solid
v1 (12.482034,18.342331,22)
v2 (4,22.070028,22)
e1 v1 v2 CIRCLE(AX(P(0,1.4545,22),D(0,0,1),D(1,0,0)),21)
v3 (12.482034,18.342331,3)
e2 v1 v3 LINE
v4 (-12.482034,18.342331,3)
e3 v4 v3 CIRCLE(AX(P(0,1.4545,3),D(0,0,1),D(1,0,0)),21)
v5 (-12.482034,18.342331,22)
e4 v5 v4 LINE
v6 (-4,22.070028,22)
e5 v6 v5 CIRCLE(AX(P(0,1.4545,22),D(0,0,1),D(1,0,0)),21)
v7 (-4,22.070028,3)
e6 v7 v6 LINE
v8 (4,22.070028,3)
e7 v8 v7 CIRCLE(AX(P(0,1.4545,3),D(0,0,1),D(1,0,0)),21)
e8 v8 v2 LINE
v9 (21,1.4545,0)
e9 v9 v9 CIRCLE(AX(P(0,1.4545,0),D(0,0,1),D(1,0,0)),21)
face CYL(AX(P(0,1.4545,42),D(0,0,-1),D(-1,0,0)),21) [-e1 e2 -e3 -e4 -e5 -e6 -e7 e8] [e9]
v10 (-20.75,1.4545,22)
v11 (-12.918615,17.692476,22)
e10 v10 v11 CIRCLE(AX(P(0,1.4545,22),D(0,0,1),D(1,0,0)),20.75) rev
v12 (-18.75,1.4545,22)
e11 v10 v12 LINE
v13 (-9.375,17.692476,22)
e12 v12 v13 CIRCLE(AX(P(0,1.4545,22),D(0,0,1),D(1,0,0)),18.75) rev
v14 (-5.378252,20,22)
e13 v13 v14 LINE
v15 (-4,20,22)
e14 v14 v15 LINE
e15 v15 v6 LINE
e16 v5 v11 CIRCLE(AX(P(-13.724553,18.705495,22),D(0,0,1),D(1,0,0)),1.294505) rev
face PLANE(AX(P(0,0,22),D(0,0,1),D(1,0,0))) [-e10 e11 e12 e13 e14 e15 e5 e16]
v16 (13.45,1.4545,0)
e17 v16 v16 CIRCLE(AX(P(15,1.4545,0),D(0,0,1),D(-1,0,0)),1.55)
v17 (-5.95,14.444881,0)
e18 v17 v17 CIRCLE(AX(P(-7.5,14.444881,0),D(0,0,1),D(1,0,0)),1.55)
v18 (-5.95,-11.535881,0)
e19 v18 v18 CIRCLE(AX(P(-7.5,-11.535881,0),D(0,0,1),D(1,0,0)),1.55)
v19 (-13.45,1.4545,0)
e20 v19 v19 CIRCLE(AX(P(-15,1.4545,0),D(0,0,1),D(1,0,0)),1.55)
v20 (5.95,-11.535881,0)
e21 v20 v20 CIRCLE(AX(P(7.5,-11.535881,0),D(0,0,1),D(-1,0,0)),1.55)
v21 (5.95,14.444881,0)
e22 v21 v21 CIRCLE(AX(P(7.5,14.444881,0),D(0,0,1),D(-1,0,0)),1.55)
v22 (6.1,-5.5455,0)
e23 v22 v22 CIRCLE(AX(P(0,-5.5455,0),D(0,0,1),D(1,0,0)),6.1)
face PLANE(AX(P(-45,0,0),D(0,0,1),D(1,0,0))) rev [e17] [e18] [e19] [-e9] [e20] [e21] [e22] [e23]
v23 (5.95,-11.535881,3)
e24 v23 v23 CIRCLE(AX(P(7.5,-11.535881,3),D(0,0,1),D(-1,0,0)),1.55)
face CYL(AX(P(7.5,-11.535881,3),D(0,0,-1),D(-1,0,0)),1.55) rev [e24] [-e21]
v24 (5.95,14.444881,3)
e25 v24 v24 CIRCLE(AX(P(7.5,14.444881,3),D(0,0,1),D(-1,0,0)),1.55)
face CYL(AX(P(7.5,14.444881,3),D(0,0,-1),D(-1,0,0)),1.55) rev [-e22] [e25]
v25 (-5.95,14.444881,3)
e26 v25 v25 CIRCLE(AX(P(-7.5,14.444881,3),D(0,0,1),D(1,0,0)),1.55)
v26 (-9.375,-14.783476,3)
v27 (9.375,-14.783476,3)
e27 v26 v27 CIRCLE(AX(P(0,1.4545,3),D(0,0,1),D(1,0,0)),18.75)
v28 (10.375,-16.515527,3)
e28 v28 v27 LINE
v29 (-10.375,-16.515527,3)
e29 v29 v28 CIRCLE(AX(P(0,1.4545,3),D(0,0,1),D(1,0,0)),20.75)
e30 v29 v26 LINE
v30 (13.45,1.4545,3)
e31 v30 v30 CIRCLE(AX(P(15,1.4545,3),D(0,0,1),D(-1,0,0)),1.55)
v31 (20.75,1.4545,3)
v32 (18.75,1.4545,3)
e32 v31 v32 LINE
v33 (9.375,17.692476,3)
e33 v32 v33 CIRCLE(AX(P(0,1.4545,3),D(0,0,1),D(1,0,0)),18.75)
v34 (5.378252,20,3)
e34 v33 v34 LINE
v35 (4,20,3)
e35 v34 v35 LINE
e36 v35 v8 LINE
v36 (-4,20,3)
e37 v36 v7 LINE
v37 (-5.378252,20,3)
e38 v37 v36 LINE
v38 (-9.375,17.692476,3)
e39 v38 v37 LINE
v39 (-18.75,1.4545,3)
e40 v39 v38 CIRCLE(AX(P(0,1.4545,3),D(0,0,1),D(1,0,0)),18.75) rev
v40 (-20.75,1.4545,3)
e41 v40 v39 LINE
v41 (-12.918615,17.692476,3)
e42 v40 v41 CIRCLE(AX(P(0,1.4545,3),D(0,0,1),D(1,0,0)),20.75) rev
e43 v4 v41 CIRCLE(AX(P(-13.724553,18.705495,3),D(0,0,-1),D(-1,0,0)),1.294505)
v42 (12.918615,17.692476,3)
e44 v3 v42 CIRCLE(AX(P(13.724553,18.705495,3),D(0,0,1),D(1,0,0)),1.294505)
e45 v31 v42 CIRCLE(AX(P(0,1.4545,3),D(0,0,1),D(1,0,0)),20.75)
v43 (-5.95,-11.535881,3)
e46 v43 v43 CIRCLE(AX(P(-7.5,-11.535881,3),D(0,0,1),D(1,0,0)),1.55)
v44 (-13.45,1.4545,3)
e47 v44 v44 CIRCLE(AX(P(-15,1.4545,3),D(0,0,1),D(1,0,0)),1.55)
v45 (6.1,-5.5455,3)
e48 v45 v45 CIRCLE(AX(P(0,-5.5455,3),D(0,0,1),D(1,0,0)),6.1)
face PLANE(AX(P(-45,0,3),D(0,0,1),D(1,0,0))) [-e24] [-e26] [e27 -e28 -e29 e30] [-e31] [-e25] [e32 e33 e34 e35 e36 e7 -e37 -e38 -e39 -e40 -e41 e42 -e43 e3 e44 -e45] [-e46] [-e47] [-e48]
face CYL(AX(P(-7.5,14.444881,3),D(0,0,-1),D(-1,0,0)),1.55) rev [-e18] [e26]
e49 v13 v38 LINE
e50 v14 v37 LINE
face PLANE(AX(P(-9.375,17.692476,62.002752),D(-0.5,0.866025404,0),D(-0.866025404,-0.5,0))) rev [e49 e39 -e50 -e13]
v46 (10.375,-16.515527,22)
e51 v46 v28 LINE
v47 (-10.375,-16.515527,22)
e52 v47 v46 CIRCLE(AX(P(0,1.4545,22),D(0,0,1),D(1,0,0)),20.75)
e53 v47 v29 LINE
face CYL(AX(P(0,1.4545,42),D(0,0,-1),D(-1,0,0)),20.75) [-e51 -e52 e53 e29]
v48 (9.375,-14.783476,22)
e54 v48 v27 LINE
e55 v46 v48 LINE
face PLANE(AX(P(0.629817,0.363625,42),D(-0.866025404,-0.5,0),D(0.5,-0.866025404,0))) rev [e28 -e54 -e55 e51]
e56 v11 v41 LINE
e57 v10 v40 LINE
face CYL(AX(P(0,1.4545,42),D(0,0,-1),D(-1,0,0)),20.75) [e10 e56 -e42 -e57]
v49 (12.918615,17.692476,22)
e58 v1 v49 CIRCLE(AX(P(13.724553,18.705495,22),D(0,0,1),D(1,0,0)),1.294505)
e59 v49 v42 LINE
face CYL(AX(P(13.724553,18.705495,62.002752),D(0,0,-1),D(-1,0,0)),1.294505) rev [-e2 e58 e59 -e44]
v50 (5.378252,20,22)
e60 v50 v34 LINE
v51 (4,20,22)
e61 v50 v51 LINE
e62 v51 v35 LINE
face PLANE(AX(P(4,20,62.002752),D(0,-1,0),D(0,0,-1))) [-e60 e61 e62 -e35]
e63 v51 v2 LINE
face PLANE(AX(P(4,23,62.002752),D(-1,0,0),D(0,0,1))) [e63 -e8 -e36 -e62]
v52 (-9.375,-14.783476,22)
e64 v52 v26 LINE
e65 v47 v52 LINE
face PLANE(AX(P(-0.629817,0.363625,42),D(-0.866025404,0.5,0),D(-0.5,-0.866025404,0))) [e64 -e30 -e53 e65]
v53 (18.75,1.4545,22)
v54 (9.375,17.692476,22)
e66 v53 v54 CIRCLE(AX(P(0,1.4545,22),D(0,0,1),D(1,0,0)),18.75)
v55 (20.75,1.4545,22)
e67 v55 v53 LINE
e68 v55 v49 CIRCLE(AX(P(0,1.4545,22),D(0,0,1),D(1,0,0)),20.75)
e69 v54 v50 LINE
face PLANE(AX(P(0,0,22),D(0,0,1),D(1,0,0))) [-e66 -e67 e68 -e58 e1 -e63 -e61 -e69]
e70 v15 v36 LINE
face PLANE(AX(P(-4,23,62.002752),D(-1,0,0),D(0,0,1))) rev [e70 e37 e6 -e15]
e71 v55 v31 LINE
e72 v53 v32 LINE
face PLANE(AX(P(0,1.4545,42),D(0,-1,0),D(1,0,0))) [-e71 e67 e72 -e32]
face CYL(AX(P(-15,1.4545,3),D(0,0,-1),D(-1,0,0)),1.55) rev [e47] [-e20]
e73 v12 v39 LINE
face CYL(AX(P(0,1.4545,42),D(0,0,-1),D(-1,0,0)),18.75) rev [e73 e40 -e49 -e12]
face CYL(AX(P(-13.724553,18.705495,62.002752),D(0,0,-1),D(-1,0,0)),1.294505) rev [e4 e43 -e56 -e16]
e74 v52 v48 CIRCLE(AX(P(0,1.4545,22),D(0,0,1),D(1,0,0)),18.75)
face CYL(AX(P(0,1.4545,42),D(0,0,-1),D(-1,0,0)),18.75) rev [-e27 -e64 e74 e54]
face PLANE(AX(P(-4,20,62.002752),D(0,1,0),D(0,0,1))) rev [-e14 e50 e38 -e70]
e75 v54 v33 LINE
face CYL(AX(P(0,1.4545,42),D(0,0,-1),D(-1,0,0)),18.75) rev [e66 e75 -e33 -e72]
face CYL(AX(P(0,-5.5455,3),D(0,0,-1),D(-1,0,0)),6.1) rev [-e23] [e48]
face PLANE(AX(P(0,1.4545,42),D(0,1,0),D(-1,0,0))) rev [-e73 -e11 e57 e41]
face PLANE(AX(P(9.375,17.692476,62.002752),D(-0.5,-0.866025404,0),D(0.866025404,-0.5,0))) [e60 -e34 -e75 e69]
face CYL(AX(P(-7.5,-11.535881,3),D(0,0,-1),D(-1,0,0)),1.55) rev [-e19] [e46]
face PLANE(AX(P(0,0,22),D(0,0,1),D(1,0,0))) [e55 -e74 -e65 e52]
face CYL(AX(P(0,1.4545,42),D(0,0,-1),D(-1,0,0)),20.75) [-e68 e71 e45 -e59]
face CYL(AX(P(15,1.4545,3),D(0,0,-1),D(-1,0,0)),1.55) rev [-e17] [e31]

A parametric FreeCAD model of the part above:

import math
import FreeCAD as App
import Part
import Sketcher
Q = App.Units.Quantity

doc = App.newDocument("Part")
body = doc.addObject("PartDesign::Body", "Body")

# Sketch on XY plane
sketch1 = body.newObject("Sketcher::SketchObject", "Sketch")
sketch1.AttachmentSupport = (doc.getObject("XY_Plane"), [""])
sketch1.MapMode = "FlatFace"
sketch1.addGeometry([
    Part.LineSegment(App.Vector(-12, 37.8, 0), App.Vector(-48.4, 3.7, 0)),  # 0
    Part.ArcOfCircle(Part.Circle(App.Vector(-45, 0, 0), App.Vector(0, 0, 1), 5), math.radians(133), math.radians(244)),  # 1
    Part.LineSegment(App.Vector(-47.2, -4.5, 0), App.Vector(-17.7, -19.2, 0)),  # 2
    Part.ArcOfCircle(Part.Circle(App.Vector(-16, -15.8, 0), App.Vector(0, 0, 1), 3.8), math.radians(-116), math.radians(-90)),  # 3
    Part.LineSegment(App.Vector(-16, -19.5, 0), App.Vector(16, -19.5, 0)),  # 4
    Part.ArcOfCircle(Part.Circle(App.Vector(16, -15.8, 0), App.Vector(0, 0, 1), 3.8), math.radians(-90), math.radians(-64)),  # 5
    Part.LineSegment(App.Vector(17.7, -19.2, 0), App.Vector(47.2, -4.5, 0)),  # 6
    Part.ArcOfCircle(Part.Circle(App.Vector(45, 0, 0), App.Vector(0, 0, 1), 5), math.radians(-64), math.radians(47)),  # 7
    Part.LineSegment(App.Vector(48.4, 3.7, 0), App.Vector(12, 37.8, 0)),  # 8
    Part.ArcOfCircle(Part.Circle(App.Vector(0, 25, 0), App.Vector(0, 0, 1), 17.5), math.radians(47), math.radians(133)),  # 9
    Part.Circle(App.Vector(16, -15.8, 0), App.Vector(0, 0, 1), 2.5),  # 10
    Part.Circle(App.Vector(7.5, -11.5, 0), App.Vector(0, 0, 1), 1.6),  # 11
    Part.Circle(App.Vector(-16, -15.8, 0), App.Vector(0, 0, 1), 2.5),  # 12
    Part.Circle(App.Vector(-7.5, -11.5, 0), App.Vector(0, 0, 1), 1.6),  # 13
    Part.Circle(App.Vector(0, -5.5, 0), App.Vector(0, 0, 1), 6.1),  # 14
    Part.Circle(App.Vector(45, 0, 0), App.Vector(0, 0, 1), 2.5),  # 15
    Part.Circle(App.Vector(25, 0, 0), App.Vector(0, 0, 1), 2.5),  # 16
    Part.Circle(App.Vector(15, 1.5, 0), App.Vector(0, 0, 1), 1.6),  # 17
    Part.Circle(App.Vector(7.5, 14.4, 0), App.Vector(0, 0, 1), 1.6),  # 18
    Part.Circle(App.Vector(-15, 1.5, 0), App.Vector(0, 0, 1), 1.6),  # 19
    Part.Circle(App.Vector(-25, 0, 0), App.Vector(0, 0, 1), 2.5),  # 20
    Part.Circle(App.Vector(-45, 0, 0), App.Vector(0, 0, 1), 2.5),  # 21
    Part.Circle(App.Vector(-7.5, 14.4, 0), App.Vector(0, 0, 1), 1.6),  # 22
], False)
sketch1.addConstraint([
    Sketcher.Constraint("Tangent", 0, 2, 1, 1),
    Sketcher.Constraint("Tangent", 1, 2, 2, 1),
    Sketcher.Constraint("Tangent", 2, 2, 3, 1),
    Sketcher.Constraint("Tangent", 3, 2, 4, 1),
    Sketcher.Constraint("Tangent", 4, 2, 5, 1),
    Sketcher.Constraint("Tangent", 5, 2, 6, 1),
    Sketcher.Constraint("Tangent", 6, 2, 7, 1),
    Sketcher.Constraint("Tangent", 7, 2, 8, 1),
    Sketcher.Constraint("Tangent", 8, 2, 9, 1),
    Sketcher.Constraint("Tangent", 9, 2, 0, 1),
    Sketcher.Constraint("Horizontal", 4),
    Sketcher.Constraint("Coincident", 10, 3, 5, 3),
    Sketcher.Constraint("Coincident", 12, 3, 3, 3),
    Sketcher.Constraint("Coincident", 15, 3, 7, 3),
    Sketcher.Constraint("Coincident", 21, 3, 1, 3),
    Sketcher.Constraint("Equal", 3, 5),
    Sketcher.Constraint("Equal", 1, 7),
    Sketcher.Constraint("Equal", 10, 12),
    Sketcher.Constraint("Equal", 11, 13),
    Sketcher.Constraint("Equal", 12, 15),
    Sketcher.Constraint("Equal", 15, 16),
    Sketcher.Constraint("Equal", 13, 17),
    Sketcher.Constraint("Equal", 17, 18),
    Sketcher.Constraint("Equal", 18, 19),
    Sketcher.Constraint("Equal", 16, 20),
    Sketcher.Constraint("Equal", 20, 21),
    Sketcher.Constraint("Equal", 19, 22),
    Sketcher.Constraint("Symmetric", 1, 3, 7, 3, -1, 1),
    Sketcher.Constraint("Symmetric", 16, 3, 20, 3, -1, 1),
    Sketcher.Constraint("Symmetric", 11, 3, 13, 3, -2),
    Sketcher.Constraint("Symmetric", 17, 3, 19, 3, -2),
    Sketcher.Constraint("Symmetric", 18, 3, 22, 3, -2),
    Sketcher.Constraint("Symmetric", 2, 2, 5, 2, -2),
    Sketcher.Constraint("PointOnObject", 9, 3, -2),
    Sketcher.Constraint("PointOnObject", 14, 3, -2),
    Sketcher.Constraint("PointOnObject", 16, 3, -1),
    Sketcher.Constraint("Vertical", 11, 3, 18, 3),
    Sketcher.Constraint("Diameter", 10, 5.0),
    Sketcher.Constraint("Radius", 1, 5.0),
    Sketcher.Constraint("Diameter", 11, 3.1),
    Sketcher.Constraint("Diameter", 14, 12.2),
    Sketcher.Constraint("Radius", 9, 17.5),
    Sketcher.Constraint("DistanceX", 4, 1, 4, 2, 32.0),
    Sketcher.Constraint("Radius", 3, 3.75),
    Sketcher.Constraint("DistanceX", 1, 3, -1, 1, 45.0),
    Sketcher.Constraint("DistanceY", -1, 1, 9, 3, 25.0),
    Sketcher.Constraint("DistanceX", -1, 1, 16, 3, 25.0),
    Sketcher.Constraint("DistanceX", -1, 1, 17, 3, 15.0),
    Sketcher.Constraint("DistanceX", 13, 3, 11, 3, 15.0),
    Sketcher.Constraint("DistanceY", 14, 3, 17, 3, 7.0),
    Sketcher.Constraint("DistanceY", 3, 2, 19, 3, 21.0),
    Sketcher.Constraint("DistanceY", 3, 3, -1, 1, 15.7955),
    Sketcher.Constraint("DistanceY", 11, 3, -1, 1, 11.535881),
    Sketcher.Constraint("DistanceY", -1, 1, 18, 3, 14.444881),
])
pad1 = body.newObject("PartDesign::Pad", "Pad")
pad1.Profile = sketch1
pad1.Length = 3

# Sketch on XY plane
sketch2 = body.newObject("Sketcher::SketchObject", "Sketch001")
sketch2.AttachmentSupport = (doc.getObject("XY_Plane"), [""])
sketch2.MapMode = "FlatFace"
sketch2.AttachmentOffset = App.Placement(App.Vector(0, 0, 3), App.Rotation())
sketch2.addGeometry([
    Part.LineSegment(App.Vector(-20.8, 1.5, 0), App.Vector(-18.8, 1.5, 0)),  # 0
    Part.ArcOfCircle(Part.Circle(App.Vector(0, 1.5, 0), App.Vector(0, 0, 1), 18.8), math.radians(120), math.radians(180)),  # 1
    Part.LineSegment(App.Vector(-9.4, 17.7, 0), App.Vector(-10.4, 19.4, 0)),  # 2
    Part.ArcOfCircle(Part.Circle(App.Vector(0, 1.5, 0), App.Vector(0, 0, 1), 20.7), math.radians(120), math.radians(180)),  # 3
    Part.LineSegment(App.Vector(-9.4, -14.8, 0), App.Vector(-10.4, -16.5, 0)),  # 4
    Part.ArcOfCircle(Part.Circle(App.Vector(0, 1.5, 0), App.Vector(0, 0, 1), 20.8), math.radians(-120), math.radians(-60)),  # 5
    Part.LineSegment(App.Vector(10.4, -16.5, 0), App.Vector(9.4, -14.8, 0)),  # 6
    Part.ArcOfCircle(Part.Circle(App.Vector(0, 1.5, 0), App.Vector(0, 0, 1), 18.8), math.radians(-120), math.radians(-60)),  # 7
    Part.ArcOfCircle(Part.Circle(App.Vector(0, 1.5, 0), App.Vector(0, 0, 1), 18.8), math.radians(0), math.radians(60)),  # 8
    Part.LineSegment(App.Vector(18.8, 1.5, 0), App.Vector(20.8, 1.5, 0)),  # 9
    Part.ArcOfCircle(Part.Circle(App.Vector(0, 1.5, 0), App.Vector(0, 0, 1), 20.7), math.radians(0), math.radians(60)),  # 10
    Part.LineSegment(App.Vector(10.4, 19.4, 0), App.Vector(9.4, 17.7, 0)),  # 11
], False)
sketch2.addConstraint([
    Sketcher.Constraint("Coincident", 0, 2, 1, 2),
    Sketcher.Constraint("Coincident", 1, 1, 2, 1),
    Sketcher.Constraint("Coincident", 2, 2, 3, 1),
    Sketcher.Constraint("Coincident", 3, 2, 0, 1),
    Sketcher.Constraint("Coincident", 4, 2, 5, 1),
    Sketcher.Constraint("Coincident", 5, 2, 6, 1),
    Sketcher.Constraint("Coincident", 6, 2, 7, 2),
    Sketcher.Constraint("Coincident", 7, 1, 4, 1),
    Sketcher.Constraint("Coincident", 8, 1, 9, 1),
    Sketcher.Constraint("Coincident", 9, 2, 10, 1),
    Sketcher.Constraint("Coincident", 10, 2, 11, 1),
    Sketcher.Constraint("Coincident", 11, 2, 8, 2),
    Sketcher.Constraint("Horizontal", 0),
    Sketcher.Constraint("Horizontal", 9),
    Sketcher.Constraint("Coincident", 3, 3, 1, 3),
    Sketcher.Constraint("Coincident", 5, 3, 1, 3),
    Sketcher.Constraint("Coincident", 7, 3, 1, 3),
    Sketcher.Constraint("Coincident", 8, 3, 1, 3),
    Sketcher.Constraint("Coincident", 10, 3, 1, 3),
    Sketcher.Constraint("Equal", 3, 5),
    Sketcher.Constraint("Equal", 1, 7),
    Sketcher.Constraint("Equal", 7, 8),
    Sketcher.Constraint("Equal", 5, 10),
    Sketcher.Constraint("Symmetric", 4, 2, 5, 2, -2),
    Sketcher.Constraint("Parallel", 2, 6),
    Sketcher.Constraint("Parallel", 4, 11),
    Sketcher.Constraint("Horizontal", 10, 3, 0, 2),
    Sketcher.Constraint("Horizontal", 6, 2, 7, 1),
    Sketcher.Constraint("Horizontal", 3, 2, 8, 1),
    Sketcher.Constraint("Horizontal", 2, 2, 10, 2),
    Sketcher.Constraint("Vertical", 2, 2, 4, 2),
    Sketcher.Constraint("DistanceX", 0, 1, 0, 2, 2.0),
    Sketcher.Constraint("Angle", 2, Q("120 deg")),
    Sketcher.Constraint("Radius", 1, 18.75),
    Sketcher.Constraint("DistanceX", 4, 2, 5, 2, 20.75),
    Sketcher.Constraint("DistanceY", -1, 1, 1, 3, 1.4545),
])
pad2 = body.newObject("PartDesign::Pad", "Pad001")
pad2.Profile = sketch2
pad2.Length = 39

# Sketch on XY plane
sketch3 = body.newObject("Sketcher::SketchObject", "Sketch002")
sketch3.AttachmentSupport = (doc.getObject("XY_Plane"), [""])
sketch3.MapMode = "FlatFace"
sketch3.AttachmentOffset = App.Placement(App.Vector(0, 0, 3), App.Rotation())
sketch3.addGeometry([
    Part.LineSegment(App.Vector(-17.5, 23, 0), App.Vector(-17.5, 29, 0)),  # 0
    Part.LineSegment(App.Vector(-17.5, 29, 0), App.Vector(-20.5, 29, 0)),  # 1
    Part.LineSegment(App.Vector(-20.5, 29, 0), App.Vector(-20.5, 20, 0)),  # 2
    Part.LineSegment(App.Vector(-20.5, 20, 0), App.Vector(-13.7, 20, 0)),  # 3
    Part.ArcOfCircle(Part.Circle(App.Vector(-13.7, 18.7, 0), App.Vector(0, 0, 1), 1.3), math.radians(-51), math.radians(90)),  # 4
    Part.LineSegment(App.Vector(-12.9, 17.7, 0), App.Vector(-9.4, 17.7, 0)),  # 5
    Part.LineSegment(App.Vector(-9.4, 17.7, 0), App.Vector(-5.4, 20, 0)),  # 6
    Part.LineSegment(App.Vector(-5.4, 20, 0), App.Vector(-4, 20, 0)),  # 7
    Part.LineSegment(App.Vector(-4, 20, 0), App.Vector(-4, 23, 0)),  # 8
    Part.LineSegment(App.Vector(-4, 23, 0), App.Vector(-17.5, 23, 0)),  # 9
], False)
sketch3.addConstraint([
    Sketcher.Constraint("Coincident", 0, 2, 1, 1),
    Sketcher.Constraint("Coincident", 1, 2, 2, 1),
    Sketcher.Constraint("Coincident", 2, 2, 3, 1),
    Sketcher.Constraint("Tangent", 3, 2, 4, 2),
    Sketcher.Constraint("Coincident", 4, 1, 5, 1),
    Sketcher.Constraint("Coincident", 5, 2, 6, 1),
    Sketcher.Constraint("Coincident", 6, 2, 7, 1),
    Sketcher.Constraint("Coincident", 7, 2, 8, 1),
    Sketcher.Constraint("Coincident", 8, 2, 9, 1),
    Sketcher.Constraint("Coincident", 9, 2, 0, 1),
    Sketcher.Constraint("Vertical", 0),
    Sketcher.Constraint("Horizontal", 1),
    Sketcher.Constraint("Vertical", 2),
    Sketcher.Constraint("Horizontal", 3),
    Sketcher.Constraint("Horizontal", 5),
    Sketcher.Constraint("Horizontal", 7),
    Sketcher.Constraint("Vertical", 8),
    Sketcher.Constraint("Horizontal", 9),
    Sketcher.Constraint("Horizontal", 3, 2, 6, 2),
    Sketcher.Constraint("Equal", 1, 8),
    Sketcher.Constraint("DistanceX", 1, 2, 1, 1, 3.0),
    Sketcher.Constraint("DistanceY", 0, 1, 0, 2, 6.0),
    Sketcher.Constraint("Angle", 6, Q("30 deg")),
    Sketcher.Constraint("DistanceX", 9, 2, 9, 1, 13.5),
    Sketcher.Constraint("DistanceY", -1, 1, 0, 2, 29.0),
    Sketcher.Constraint("DistanceX", 7, 2, -1, 1, 4.0),
    Sketcher.Constraint("DistanceX", 5, 2, -1, 1, 9.375),
    Sketcher.Constraint("Radius", 4, 1.294505),
    Sketcher.Constraint("DistanceX", 7, 1, 7, 2, 1.378252),
    Sketcher.Constraint("DistanceX", 3, 2, 6, 2, 8.346302),
])
pad3 = body.newObject("PartDesign::Pad", "Pad002")
pad3.Profile = sketch3
pad3.Length = 39
doc.recompute()

mirrored = body.newObject("PartDesign::Mirrored", "Mirrored")
mirrored.Originals = [pad3]
mirrored.MirrorPlane = (doc.getObject("YZ_Plane"), [""])
body.Tip = mirrored

# Sketch on XZ plane
sketch4 = body.newObject("Sketcher::SketchObject", "Sketch003")
sketch4.AttachmentSupport = (doc.getObject("XZ_Plane"), [""])
sketch4.MapMode = "FlatFace"
sketch4.AttachmentOffset = App.Placement(App.Vector(0, 0, -23), App.Rotation())
sketch4.addGeometry([
    Part.LineSegment(App.Vector(-14.2, 27.5, 0), App.Vector(-14.2, 17.5, 0)),  # 0
    Part.ArcOfCircle(Part.Circle(App.Vector(-15.7, 17.5, 0), App.Vector(0, 0, 1), 1.5), math.radians(180), math.radians(360)),  # 1
    Part.LineSegment(App.Vector(-17.2, 17.5, 0), App.Vector(-17.2, 27.5, 0)),  # 2
    Part.ArcOfCircle(Part.Circle(App.Vector(-15.7, 27.5, 0), App.Vector(0, 0, 1), 1.5), math.radians(0), math.radians(180)),  # 3
    Part.LineSegment(App.Vector(14.2, 17.5, 0), App.Vector(14.2, 27.5, 0)),  # 4
    Part.ArcOfCircle(Part.Circle(App.Vector(15.7, 27.5, 0), App.Vector(0, 0, 1), 1.5), math.radians(0), math.radians(180)),  # 5
    Part.LineSegment(App.Vector(17.2, 27.5, 0), App.Vector(17.2, 17.5, 0)),  # 6
    Part.ArcOfCircle(Part.Circle(App.Vector(15.7, 17.5, 0), App.Vector(0, 0, 1), 1.5), math.radians(180), math.radians(360)),  # 7
], False)
sketch4.addConstraint([
    Sketcher.Constraint("Tangent", 0, 2, 1, 2),
    Sketcher.Constraint("Tangent", 1, 1, 2, 1),
    Sketcher.Constraint("Tangent", 2, 2, 3, 2),
    Sketcher.Constraint("Tangent", 3, 1, 0, 1),
    Sketcher.Constraint("Tangent", 4, 2, 5, 2),
    Sketcher.Constraint("Tangent", 5, 1, 6, 1),
    Sketcher.Constraint("Tangent", 6, 2, 7, 2),
    Sketcher.Constraint("Tangent", 7, 1, 4, 1),
    Sketcher.Constraint("Vertical", 0),
    Sketcher.Constraint("Vertical", 2),
    Sketcher.Constraint("Vertical", 4),
    Sketcher.Constraint("Vertical", 6),
    Sketcher.Constraint("Equal", 3, 5),
    Sketcher.Constraint("Symmetric", 3, 3, 5, 3, -2),
    Sketcher.Constraint("Horizontal", 1, 3, 7, 3),
    Sketcher.Constraint("Radius", 1, 1.5),
    Sketcher.Constraint("DistanceY", 0, 2, 0, 1, 10.0),
    Sketcher.Constraint("DistanceY", -1, 1, 1, 3, 17.5),
    Sketcher.Constraint("DistanceX", 1, 3, -1, 1, 15.724553),
])
pocket1 = body.newObject("PartDesign::Pocket", "Pocket")
pocket1.Profile = sketch4
pocket1.Length = 3
pocket1.Reversed = True

# Sketch on XY plane
sketch5 = body.newObject("Sketcher::SketchObject", "Sketch004")
sketch5.AttachmentSupport = (doc.getObject("XY_Plane"), [""])
sketch5.MapMode = "FlatFace"
sketch5.AttachmentOffset = App.Placement(App.Vector(0, 0, 3), App.Rotation())
sketch5.addGeometry([
    Part.LineSegment(App.Vector(-43.8, 23.3, 0), App.Vector(-43.8, 6, 0)),  # 0
    Part.LineSegment(App.Vector(-43.8, 6, 0), App.Vector(-29.2, -7.7, 0)),  # 1
    Part.LineSegment(App.Vector(-29.2, -7.7, 0), App.Vector(-18.1, -7.7, 0)),  # 2
    Part.LineSegment(App.Vector(-18.1, -7.7, 0), App.Vector(-18.1, -4.7, 0)),  # 3
    Part.LineSegment(App.Vector(-18.1, -4.7, 0), App.Vector(-28, -4.7, 0)),  # 4
    Part.LineSegment(App.Vector(-28, -4.7, 0), App.Vector(-40.8, 7.3, 0)),  # 5
    Part.LineSegment(App.Vector(-40.8, 7.3, 0), App.Vector(-40.8, 23.3, 0)),  # 6
    Part.LineSegment(App.Vector(-40.8, 23.3, 0), App.Vector(-43.8, 23.3, 0)),  # 7
], False)
sketch5.addConstraint([
    Sketcher.Constraint("Coincident", 0, 2, 1, 1),
    Sketcher.Constraint("Coincident", 1, 2, 2, 1),
    Sketcher.Constraint("Coincident", 2, 2, 3, 1),
    Sketcher.Constraint("Coincident", 3, 2, 4, 1),
    Sketcher.Constraint("Coincident", 4, 2, 5, 1),
    Sketcher.Constraint("Coincident", 5, 2, 6, 1),
    Sketcher.Constraint("Coincident", 6, 2, 7, 1),
    Sketcher.Constraint("Coincident", 7, 2, 0, 1),
    Sketcher.Constraint("Vertical", 0),
    Sketcher.Constraint("Horizontal", 2),
    Sketcher.Constraint("Vertical", 3),
    Sketcher.Constraint("Horizontal", 4),
    Sketcher.Constraint("Vertical", 6),
    Sketcher.Constraint("Horizontal", 7),
    Sketcher.Constraint("Parallel", 1, 5),
    Sketcher.Constraint("Equal", 7, 3),
    Sketcher.Constraint("DistanceX", 7, 2, 7, 1, 3.0),
    Sketcher.Constraint("Distance", 1, 20.081718),
    Sketcher.Constraint("DistanceX", 2, 1, 2, 2, 11.090434),
    Sketcher.Constraint("DistanceX", 4, 2, 4, 1, 9.898728),
    Sketcher.Constraint("DistanceY", 0, 2, 0, 1, 17.306437),
    Sketcher.Constraint("DistanceY", 6, 1, 6, 2, 16.012243),
    Sketcher.Constraint("DistanceX", 1, 2, -1, 1, 29.176552),
    Sketcher.Constraint("DistanceY", 1, 2, -1, 1, 7.73951),
])
pad4 = body.newObject("PartDesign::Pad", "Pad003")
pad4.Profile = sketch5
pad4.Length = 34
doc.recompute()

mirrored2 = body.newObject("PartDesign::Mirrored", "Mirrored001")
mirrored2.Originals = [pad4]
mirrored2.MirrorPlane = (doc.getObject("YZ_Plane"), [""])
body.Tip = mirrored2

# Sketch on XY plane
sketch6 = body.newObject("Sketcher::SketchObject", "Sketch005")
sketch6.AttachmentSupport = (doc.getObject("XY_Plane"), [""])
sketch6.MapMode = "FlatFace"
sketch6.AttachmentOffset = App.Placement(App.Vector(0, 0, 3), App.Rotation())
sketch6.addGeometry([
    Part.LineSegment(App.Vector(-40.8, 23.3, 0), App.Vector(-40.8, 10.8, 0)),  # 0
    Part.LineSegment(App.Vector(-40.8, 10.8, 0), App.Vector(-43.8, 8, 0)),  # 1
    Part.LineSegment(App.Vector(-43.8, 8, 0), App.Vector(-43.8, 23.3, 0)),  # 2
    Part.LineSegment(App.Vector(-43.8, 23.3, 0), App.Vector(-40.8, 23.3, 0)),  # 3
    Part.LineSegment(App.Vector(43.8, 23.3, 0), App.Vector(43.8, 8, 0)),  # 4
    Part.LineSegment(App.Vector(43.8, 8, 0), App.Vector(40.8, 10.8, 0)),  # 5
    Part.LineSegment(App.Vector(40.8, 10.8, 0), App.Vector(40.8, 23.3, 0)),  # 6
    Part.LineSegment(App.Vector(40.8, 23.3, 0), App.Vector(43.8, 23.3, 0)),  # 7
], False)
sketch6.addConstraint([
    Sketcher.Constraint("Coincident", 0, 2, 1, 1),
    Sketcher.Constraint("Coincident", 1, 2, 2, 1),
    Sketcher.Constraint("Coincident", 2, 2, 3, 1),
    Sketcher.Constraint("Coincident", 3, 2, 0, 1),
    Sketcher.Constraint("Coincident", 4, 2, 5, 1),
    Sketcher.Constraint("Coincident", 5, 2, 6, 1),
    Sketcher.Constraint("Coincident", 6, 2, 7, 1),
    Sketcher.Constraint("Coincident", 7, 2, 4, 1),
    Sketcher.Constraint("Vertical", 0),
    Sketcher.Constraint("Vertical", 2),
    Sketcher.Constraint("Horizontal", 3),
    Sketcher.Constraint("Vertical", 4),
    Sketcher.Constraint("Vertical", 6),
    Sketcher.Constraint("Horizontal", 7),
    Sketcher.Constraint("Symmetric", 1, 2, 4, 2, -2),
    Sketcher.Constraint("Symmetric", 0, 2, 5, 2, -2),
    Sketcher.Constraint("Horizontal", 3, 2, 6, 2),
    Sketcher.Constraint("DistanceX", 3, 1, 3, 2, 3.0),
    Sketcher.Constraint("DistanceY", 0, 2, 0, 1, 12.552233),
    Sketcher.Constraint("DistanceY", 2, 1, 2, 2, 15.360343),
    Sketcher.Constraint("DistanceY", -1, 1, 2, 2, 23.34685),
    Sketcher.Constraint("DistanceX", 0, 2, -1, 1, 40.784396),
])
pad5 = body.newObject("PartDesign::Pad", "Pad004")
pad5.Profile = sketch6
pad5.Length = 3
pad5.Reversed = True

# Sketch on XY plane
sketch7 = body.newObject("Sketcher::SketchObject", "Sketch006")
sketch7.AttachmentSupport = (doc.getObject("XY_Plane"), [""])
sketch7.MapMode = "FlatFace"
sketch7.AttachmentOffset = App.Placement(App.Vector(0, 0, 3), App.Rotation())
sketch7.addGeometry([
    Part.LineSegment(App.Vector(50.7, -24.7, 0), App.Vector(50.7, 53.6, 0)),  # 0
    Part.LineSegment(App.Vector(50.7, 53.6, 0), App.Vector(-51.8, 53.6, 0)),  # 1
    Part.LineSegment(App.Vector(-51.8, 53.6, 0), App.Vector(-51.8, -24.7, 0)),  # 2
    Part.LineSegment(App.Vector(-51.8, -24.7, 0), App.Vector(50.7, -24.7, 0)),  # 3
    Part.LineSegment(App.Vector(-16.9, -11, 0), App.Vector(16.9, -11, 0)),  # 4
    Part.ArcOfCircle(Part.Circle(App.Vector(0, 1.5, 0), App.Vector(0, 0, 1), 21), math.radians(-144), math.radians(-36)),  # 5
    Part.ArcOfCircle(Part.Circle(App.Vector(0, 1.5, 0), App.Vector(0, 0, 1), 21), math.radians(-9.38), math.radians(0)),  # 6
    Part.LineSegment(App.Vector(20.7, -2, 0), App.Vector(-20.7, -2, 0)),  # 7
    Part.ArcOfCircle(Part.Circle(App.Vector(0, 1.5, 0), App.Vector(0, 0, 1), 21), math.radians(0), math.radians(189)),  # 8
], False)
sketch7.addConstraint([
    Sketcher.Constraint("Coincident", 0, 2, 1, 1),
    Sketcher.Constraint("Coincident", 1, 2, 2, 1),
    Sketcher.Constraint("Coincident", 2, 2, 3, 1),
    Sketcher.Constraint("Coincident", 3, 2, 0, 1),
    Sketcher.Constraint("Coincident", 4, 1, 5, 1),
    Sketcher.Constraint("Coincident", 5, 2, 4, 2),
    Sketcher.Constraint("Coincident", 6, 1, 7, 1),
    Sketcher.Constraint("Coincident", 7, 2, 8, 2),
    Sketcher.Constraint("Tangent", 8, 1, 6, 2),
    Sketcher.Constraint("Vertical", 0),
    Sketcher.Constraint("Horizontal", 1),
    Sketcher.Constraint("Vertical", 2),
    Sketcher.Constraint("Horizontal", 3),
    Sketcher.Constraint("Horizontal", 4),
    Sketcher.Constraint("Horizontal", 7),
    Sketcher.Constraint("Coincident", 6, 3, 5, 3),
    Sketcher.Constraint("Equal", 5, 6),
    Sketcher.Constraint("Equal", 6, 8),
    Sketcher.Constraint("PointOnObject", 5, 3, -2),
    Sketcher.Constraint("Horizontal", 6, 3, 8, 1),
    Sketcher.Constraint("Radius", 5, 21.0),
    Sketcher.Constraint("DistanceX", 4, 1, 4, 2, 33.85928),
    Sketcher.Constraint("DistanceY", -1, 1, 5, 3, 1.4545),
    Sketcher.Constraint("DistanceY", 3, 2, 6, 1, 22.732299),
    Sketcher.Constraint("DistanceX", 1, 2, 1, 1, 102.472018),
    Sketcher.Constraint("DistanceX", 7, 2, 7, 1, 41.438167),
    Sketcher.Constraint("DistanceY", 0, 1, 0, 2, 78.286445),
    Sketcher.Constraint("DistanceX", 1, 2, -1, 1, 51.786452),
])
pocket2 = body.newObject("PartDesign::Pocket", "Pocket001")
pocket2.Profile = sketch7
pocket2.Type = "ThroughAll"
pocket2.Reversed = True

# Sketch on XY plane
sketch8 = body.newObject("Sketcher::SketchObject", "Sketch007")
sketch8.AttachmentSupport = (doc.getObject("XY_Plane"), [""])
sketch8.MapMode = "FlatFace"
sketch8.AttachmentOffset = App.Placement(App.Vector(0, 0, -7), App.Rotation())
sketch8.addGeometry([
    Part.LineSegment(App.Vector(-60, 49, 0), App.Vector(-60, -27, 0)),  # 0
    Part.LineSegment(App.Vector(-60, -27, 0), App.Vector(56, -27, 0)),  # 1
    Part.LineSegment(App.Vector(56, -27, 0), App.Vector(56, 49, 0)),  # 2
    Part.LineSegment(App.Vector(56, 49, 0), App.Vector(-60, 49, 0)),  # 3
    Part.Circle(App.Vector(0, 1, 0), App.Vector(0, 0, 1), 21),  # 4
], False)
sketch8.addConstraint([
    Sketcher.Constraint("Coincident", 0, 2, 1, 1),
    Sketcher.Constraint("Coincident", 1, 2, 2, 1),
    Sketcher.Constraint("Coincident", 2, 2, 3, 1),
    Sketcher.Constraint("Coincident", 3, 2, 0, 1),
    Sketcher.Constraint("Vertical", 0),
    Sketcher.Constraint("Horizontal", 1),
    Sketcher.Constraint("Vertical", 2),
    Sketcher.Constraint("Horizontal", 3),
    Sketcher.Constraint("PointOnObject", 4, 3, -2),
    Sketcher.Constraint("Diameter", 4, 42.0),
    Sketcher.Constraint("DistanceY", -1, 1, 4, 3, 1.4545),
    Sketcher.Constraint("DistanceX", 1, 1, 1, 2, 115.741676),
    Sketcher.Constraint("DistanceY", 0, 2, 0, 1, 76.731694),
    Sketcher.Constraint("DistanceY", 0, 2, -1, 1, 27.470322),
    Sketcher.Constraint("DistanceX", 0, 2, -1, 1, 60.121113),
])
pocket3 = body.newObject("PartDesign::Pocket", "Pocket002")
pocket3.Profile = sketch8
pocket3.Length = 10
pocket3.Reversed = True

# Sketch on XY plane
sketch9 = body.newObject("Sketcher::SketchObject", "Sketch008")
sketch9.AttachmentSupport = (doc.getObject("XY_Plane"), [""])
sketch9.MapMode = "FlatFace"
sketch9.AttachmentOffset = App.Placement(App.Vector(0, 0, 42), App.Rotation())
sketch9.addGeometry([
    Part.LineSegment(App.Vector(-28, 26, 0), App.Vector(-28, -26, 0)),
    Part.LineSegment(App.Vector(-28, -26, 0), App.Vector(24, -26, 0)),
    Part.LineSegment(App.Vector(24, -26, 0), App.Vector(24, 26, 0)),
    Part.LineSegment(App.Vector(24, 26, 0), App.Vector(-28, 26, 0)),
], False)
sketch9.addConstraint([
    Sketcher.Constraint("Coincident", 0, 2, 1, 1),
    Sketcher.Constraint("Coincident", 1, 2, 2, 1),
    Sketcher.Constraint("Coincident", 2, 2, 3, 1),
    Sketcher.Constraint("Coincident", 3, 2, 0, 1),
    Sketcher.Constraint("Vertical", 0),
    Sketcher.Constraint("Horizontal", 1),
    Sketcher.Constraint("Vertical", 2),
    Sketcher.Constraint("Horizontal", 3),
    Sketcher.Constraint("DistanceX", 1, 1, 1, 2, 52.464416),
    Sketcher.Constraint("DistanceY", 0, 2, 0, 1, 51.664843),
    Sketcher.Constraint("DistanceX", 0, 2, -1, 1, 27.969912),
    Sketcher.Constraint("DistanceY", 0, 2, -1, 1, 25.86339),
])
pocket4 = body.newObject("PartDesign::Pocket", "Pocket003")
pocket4.Profile = sketch9
pocket4.Length = 20

doc.recompute()
